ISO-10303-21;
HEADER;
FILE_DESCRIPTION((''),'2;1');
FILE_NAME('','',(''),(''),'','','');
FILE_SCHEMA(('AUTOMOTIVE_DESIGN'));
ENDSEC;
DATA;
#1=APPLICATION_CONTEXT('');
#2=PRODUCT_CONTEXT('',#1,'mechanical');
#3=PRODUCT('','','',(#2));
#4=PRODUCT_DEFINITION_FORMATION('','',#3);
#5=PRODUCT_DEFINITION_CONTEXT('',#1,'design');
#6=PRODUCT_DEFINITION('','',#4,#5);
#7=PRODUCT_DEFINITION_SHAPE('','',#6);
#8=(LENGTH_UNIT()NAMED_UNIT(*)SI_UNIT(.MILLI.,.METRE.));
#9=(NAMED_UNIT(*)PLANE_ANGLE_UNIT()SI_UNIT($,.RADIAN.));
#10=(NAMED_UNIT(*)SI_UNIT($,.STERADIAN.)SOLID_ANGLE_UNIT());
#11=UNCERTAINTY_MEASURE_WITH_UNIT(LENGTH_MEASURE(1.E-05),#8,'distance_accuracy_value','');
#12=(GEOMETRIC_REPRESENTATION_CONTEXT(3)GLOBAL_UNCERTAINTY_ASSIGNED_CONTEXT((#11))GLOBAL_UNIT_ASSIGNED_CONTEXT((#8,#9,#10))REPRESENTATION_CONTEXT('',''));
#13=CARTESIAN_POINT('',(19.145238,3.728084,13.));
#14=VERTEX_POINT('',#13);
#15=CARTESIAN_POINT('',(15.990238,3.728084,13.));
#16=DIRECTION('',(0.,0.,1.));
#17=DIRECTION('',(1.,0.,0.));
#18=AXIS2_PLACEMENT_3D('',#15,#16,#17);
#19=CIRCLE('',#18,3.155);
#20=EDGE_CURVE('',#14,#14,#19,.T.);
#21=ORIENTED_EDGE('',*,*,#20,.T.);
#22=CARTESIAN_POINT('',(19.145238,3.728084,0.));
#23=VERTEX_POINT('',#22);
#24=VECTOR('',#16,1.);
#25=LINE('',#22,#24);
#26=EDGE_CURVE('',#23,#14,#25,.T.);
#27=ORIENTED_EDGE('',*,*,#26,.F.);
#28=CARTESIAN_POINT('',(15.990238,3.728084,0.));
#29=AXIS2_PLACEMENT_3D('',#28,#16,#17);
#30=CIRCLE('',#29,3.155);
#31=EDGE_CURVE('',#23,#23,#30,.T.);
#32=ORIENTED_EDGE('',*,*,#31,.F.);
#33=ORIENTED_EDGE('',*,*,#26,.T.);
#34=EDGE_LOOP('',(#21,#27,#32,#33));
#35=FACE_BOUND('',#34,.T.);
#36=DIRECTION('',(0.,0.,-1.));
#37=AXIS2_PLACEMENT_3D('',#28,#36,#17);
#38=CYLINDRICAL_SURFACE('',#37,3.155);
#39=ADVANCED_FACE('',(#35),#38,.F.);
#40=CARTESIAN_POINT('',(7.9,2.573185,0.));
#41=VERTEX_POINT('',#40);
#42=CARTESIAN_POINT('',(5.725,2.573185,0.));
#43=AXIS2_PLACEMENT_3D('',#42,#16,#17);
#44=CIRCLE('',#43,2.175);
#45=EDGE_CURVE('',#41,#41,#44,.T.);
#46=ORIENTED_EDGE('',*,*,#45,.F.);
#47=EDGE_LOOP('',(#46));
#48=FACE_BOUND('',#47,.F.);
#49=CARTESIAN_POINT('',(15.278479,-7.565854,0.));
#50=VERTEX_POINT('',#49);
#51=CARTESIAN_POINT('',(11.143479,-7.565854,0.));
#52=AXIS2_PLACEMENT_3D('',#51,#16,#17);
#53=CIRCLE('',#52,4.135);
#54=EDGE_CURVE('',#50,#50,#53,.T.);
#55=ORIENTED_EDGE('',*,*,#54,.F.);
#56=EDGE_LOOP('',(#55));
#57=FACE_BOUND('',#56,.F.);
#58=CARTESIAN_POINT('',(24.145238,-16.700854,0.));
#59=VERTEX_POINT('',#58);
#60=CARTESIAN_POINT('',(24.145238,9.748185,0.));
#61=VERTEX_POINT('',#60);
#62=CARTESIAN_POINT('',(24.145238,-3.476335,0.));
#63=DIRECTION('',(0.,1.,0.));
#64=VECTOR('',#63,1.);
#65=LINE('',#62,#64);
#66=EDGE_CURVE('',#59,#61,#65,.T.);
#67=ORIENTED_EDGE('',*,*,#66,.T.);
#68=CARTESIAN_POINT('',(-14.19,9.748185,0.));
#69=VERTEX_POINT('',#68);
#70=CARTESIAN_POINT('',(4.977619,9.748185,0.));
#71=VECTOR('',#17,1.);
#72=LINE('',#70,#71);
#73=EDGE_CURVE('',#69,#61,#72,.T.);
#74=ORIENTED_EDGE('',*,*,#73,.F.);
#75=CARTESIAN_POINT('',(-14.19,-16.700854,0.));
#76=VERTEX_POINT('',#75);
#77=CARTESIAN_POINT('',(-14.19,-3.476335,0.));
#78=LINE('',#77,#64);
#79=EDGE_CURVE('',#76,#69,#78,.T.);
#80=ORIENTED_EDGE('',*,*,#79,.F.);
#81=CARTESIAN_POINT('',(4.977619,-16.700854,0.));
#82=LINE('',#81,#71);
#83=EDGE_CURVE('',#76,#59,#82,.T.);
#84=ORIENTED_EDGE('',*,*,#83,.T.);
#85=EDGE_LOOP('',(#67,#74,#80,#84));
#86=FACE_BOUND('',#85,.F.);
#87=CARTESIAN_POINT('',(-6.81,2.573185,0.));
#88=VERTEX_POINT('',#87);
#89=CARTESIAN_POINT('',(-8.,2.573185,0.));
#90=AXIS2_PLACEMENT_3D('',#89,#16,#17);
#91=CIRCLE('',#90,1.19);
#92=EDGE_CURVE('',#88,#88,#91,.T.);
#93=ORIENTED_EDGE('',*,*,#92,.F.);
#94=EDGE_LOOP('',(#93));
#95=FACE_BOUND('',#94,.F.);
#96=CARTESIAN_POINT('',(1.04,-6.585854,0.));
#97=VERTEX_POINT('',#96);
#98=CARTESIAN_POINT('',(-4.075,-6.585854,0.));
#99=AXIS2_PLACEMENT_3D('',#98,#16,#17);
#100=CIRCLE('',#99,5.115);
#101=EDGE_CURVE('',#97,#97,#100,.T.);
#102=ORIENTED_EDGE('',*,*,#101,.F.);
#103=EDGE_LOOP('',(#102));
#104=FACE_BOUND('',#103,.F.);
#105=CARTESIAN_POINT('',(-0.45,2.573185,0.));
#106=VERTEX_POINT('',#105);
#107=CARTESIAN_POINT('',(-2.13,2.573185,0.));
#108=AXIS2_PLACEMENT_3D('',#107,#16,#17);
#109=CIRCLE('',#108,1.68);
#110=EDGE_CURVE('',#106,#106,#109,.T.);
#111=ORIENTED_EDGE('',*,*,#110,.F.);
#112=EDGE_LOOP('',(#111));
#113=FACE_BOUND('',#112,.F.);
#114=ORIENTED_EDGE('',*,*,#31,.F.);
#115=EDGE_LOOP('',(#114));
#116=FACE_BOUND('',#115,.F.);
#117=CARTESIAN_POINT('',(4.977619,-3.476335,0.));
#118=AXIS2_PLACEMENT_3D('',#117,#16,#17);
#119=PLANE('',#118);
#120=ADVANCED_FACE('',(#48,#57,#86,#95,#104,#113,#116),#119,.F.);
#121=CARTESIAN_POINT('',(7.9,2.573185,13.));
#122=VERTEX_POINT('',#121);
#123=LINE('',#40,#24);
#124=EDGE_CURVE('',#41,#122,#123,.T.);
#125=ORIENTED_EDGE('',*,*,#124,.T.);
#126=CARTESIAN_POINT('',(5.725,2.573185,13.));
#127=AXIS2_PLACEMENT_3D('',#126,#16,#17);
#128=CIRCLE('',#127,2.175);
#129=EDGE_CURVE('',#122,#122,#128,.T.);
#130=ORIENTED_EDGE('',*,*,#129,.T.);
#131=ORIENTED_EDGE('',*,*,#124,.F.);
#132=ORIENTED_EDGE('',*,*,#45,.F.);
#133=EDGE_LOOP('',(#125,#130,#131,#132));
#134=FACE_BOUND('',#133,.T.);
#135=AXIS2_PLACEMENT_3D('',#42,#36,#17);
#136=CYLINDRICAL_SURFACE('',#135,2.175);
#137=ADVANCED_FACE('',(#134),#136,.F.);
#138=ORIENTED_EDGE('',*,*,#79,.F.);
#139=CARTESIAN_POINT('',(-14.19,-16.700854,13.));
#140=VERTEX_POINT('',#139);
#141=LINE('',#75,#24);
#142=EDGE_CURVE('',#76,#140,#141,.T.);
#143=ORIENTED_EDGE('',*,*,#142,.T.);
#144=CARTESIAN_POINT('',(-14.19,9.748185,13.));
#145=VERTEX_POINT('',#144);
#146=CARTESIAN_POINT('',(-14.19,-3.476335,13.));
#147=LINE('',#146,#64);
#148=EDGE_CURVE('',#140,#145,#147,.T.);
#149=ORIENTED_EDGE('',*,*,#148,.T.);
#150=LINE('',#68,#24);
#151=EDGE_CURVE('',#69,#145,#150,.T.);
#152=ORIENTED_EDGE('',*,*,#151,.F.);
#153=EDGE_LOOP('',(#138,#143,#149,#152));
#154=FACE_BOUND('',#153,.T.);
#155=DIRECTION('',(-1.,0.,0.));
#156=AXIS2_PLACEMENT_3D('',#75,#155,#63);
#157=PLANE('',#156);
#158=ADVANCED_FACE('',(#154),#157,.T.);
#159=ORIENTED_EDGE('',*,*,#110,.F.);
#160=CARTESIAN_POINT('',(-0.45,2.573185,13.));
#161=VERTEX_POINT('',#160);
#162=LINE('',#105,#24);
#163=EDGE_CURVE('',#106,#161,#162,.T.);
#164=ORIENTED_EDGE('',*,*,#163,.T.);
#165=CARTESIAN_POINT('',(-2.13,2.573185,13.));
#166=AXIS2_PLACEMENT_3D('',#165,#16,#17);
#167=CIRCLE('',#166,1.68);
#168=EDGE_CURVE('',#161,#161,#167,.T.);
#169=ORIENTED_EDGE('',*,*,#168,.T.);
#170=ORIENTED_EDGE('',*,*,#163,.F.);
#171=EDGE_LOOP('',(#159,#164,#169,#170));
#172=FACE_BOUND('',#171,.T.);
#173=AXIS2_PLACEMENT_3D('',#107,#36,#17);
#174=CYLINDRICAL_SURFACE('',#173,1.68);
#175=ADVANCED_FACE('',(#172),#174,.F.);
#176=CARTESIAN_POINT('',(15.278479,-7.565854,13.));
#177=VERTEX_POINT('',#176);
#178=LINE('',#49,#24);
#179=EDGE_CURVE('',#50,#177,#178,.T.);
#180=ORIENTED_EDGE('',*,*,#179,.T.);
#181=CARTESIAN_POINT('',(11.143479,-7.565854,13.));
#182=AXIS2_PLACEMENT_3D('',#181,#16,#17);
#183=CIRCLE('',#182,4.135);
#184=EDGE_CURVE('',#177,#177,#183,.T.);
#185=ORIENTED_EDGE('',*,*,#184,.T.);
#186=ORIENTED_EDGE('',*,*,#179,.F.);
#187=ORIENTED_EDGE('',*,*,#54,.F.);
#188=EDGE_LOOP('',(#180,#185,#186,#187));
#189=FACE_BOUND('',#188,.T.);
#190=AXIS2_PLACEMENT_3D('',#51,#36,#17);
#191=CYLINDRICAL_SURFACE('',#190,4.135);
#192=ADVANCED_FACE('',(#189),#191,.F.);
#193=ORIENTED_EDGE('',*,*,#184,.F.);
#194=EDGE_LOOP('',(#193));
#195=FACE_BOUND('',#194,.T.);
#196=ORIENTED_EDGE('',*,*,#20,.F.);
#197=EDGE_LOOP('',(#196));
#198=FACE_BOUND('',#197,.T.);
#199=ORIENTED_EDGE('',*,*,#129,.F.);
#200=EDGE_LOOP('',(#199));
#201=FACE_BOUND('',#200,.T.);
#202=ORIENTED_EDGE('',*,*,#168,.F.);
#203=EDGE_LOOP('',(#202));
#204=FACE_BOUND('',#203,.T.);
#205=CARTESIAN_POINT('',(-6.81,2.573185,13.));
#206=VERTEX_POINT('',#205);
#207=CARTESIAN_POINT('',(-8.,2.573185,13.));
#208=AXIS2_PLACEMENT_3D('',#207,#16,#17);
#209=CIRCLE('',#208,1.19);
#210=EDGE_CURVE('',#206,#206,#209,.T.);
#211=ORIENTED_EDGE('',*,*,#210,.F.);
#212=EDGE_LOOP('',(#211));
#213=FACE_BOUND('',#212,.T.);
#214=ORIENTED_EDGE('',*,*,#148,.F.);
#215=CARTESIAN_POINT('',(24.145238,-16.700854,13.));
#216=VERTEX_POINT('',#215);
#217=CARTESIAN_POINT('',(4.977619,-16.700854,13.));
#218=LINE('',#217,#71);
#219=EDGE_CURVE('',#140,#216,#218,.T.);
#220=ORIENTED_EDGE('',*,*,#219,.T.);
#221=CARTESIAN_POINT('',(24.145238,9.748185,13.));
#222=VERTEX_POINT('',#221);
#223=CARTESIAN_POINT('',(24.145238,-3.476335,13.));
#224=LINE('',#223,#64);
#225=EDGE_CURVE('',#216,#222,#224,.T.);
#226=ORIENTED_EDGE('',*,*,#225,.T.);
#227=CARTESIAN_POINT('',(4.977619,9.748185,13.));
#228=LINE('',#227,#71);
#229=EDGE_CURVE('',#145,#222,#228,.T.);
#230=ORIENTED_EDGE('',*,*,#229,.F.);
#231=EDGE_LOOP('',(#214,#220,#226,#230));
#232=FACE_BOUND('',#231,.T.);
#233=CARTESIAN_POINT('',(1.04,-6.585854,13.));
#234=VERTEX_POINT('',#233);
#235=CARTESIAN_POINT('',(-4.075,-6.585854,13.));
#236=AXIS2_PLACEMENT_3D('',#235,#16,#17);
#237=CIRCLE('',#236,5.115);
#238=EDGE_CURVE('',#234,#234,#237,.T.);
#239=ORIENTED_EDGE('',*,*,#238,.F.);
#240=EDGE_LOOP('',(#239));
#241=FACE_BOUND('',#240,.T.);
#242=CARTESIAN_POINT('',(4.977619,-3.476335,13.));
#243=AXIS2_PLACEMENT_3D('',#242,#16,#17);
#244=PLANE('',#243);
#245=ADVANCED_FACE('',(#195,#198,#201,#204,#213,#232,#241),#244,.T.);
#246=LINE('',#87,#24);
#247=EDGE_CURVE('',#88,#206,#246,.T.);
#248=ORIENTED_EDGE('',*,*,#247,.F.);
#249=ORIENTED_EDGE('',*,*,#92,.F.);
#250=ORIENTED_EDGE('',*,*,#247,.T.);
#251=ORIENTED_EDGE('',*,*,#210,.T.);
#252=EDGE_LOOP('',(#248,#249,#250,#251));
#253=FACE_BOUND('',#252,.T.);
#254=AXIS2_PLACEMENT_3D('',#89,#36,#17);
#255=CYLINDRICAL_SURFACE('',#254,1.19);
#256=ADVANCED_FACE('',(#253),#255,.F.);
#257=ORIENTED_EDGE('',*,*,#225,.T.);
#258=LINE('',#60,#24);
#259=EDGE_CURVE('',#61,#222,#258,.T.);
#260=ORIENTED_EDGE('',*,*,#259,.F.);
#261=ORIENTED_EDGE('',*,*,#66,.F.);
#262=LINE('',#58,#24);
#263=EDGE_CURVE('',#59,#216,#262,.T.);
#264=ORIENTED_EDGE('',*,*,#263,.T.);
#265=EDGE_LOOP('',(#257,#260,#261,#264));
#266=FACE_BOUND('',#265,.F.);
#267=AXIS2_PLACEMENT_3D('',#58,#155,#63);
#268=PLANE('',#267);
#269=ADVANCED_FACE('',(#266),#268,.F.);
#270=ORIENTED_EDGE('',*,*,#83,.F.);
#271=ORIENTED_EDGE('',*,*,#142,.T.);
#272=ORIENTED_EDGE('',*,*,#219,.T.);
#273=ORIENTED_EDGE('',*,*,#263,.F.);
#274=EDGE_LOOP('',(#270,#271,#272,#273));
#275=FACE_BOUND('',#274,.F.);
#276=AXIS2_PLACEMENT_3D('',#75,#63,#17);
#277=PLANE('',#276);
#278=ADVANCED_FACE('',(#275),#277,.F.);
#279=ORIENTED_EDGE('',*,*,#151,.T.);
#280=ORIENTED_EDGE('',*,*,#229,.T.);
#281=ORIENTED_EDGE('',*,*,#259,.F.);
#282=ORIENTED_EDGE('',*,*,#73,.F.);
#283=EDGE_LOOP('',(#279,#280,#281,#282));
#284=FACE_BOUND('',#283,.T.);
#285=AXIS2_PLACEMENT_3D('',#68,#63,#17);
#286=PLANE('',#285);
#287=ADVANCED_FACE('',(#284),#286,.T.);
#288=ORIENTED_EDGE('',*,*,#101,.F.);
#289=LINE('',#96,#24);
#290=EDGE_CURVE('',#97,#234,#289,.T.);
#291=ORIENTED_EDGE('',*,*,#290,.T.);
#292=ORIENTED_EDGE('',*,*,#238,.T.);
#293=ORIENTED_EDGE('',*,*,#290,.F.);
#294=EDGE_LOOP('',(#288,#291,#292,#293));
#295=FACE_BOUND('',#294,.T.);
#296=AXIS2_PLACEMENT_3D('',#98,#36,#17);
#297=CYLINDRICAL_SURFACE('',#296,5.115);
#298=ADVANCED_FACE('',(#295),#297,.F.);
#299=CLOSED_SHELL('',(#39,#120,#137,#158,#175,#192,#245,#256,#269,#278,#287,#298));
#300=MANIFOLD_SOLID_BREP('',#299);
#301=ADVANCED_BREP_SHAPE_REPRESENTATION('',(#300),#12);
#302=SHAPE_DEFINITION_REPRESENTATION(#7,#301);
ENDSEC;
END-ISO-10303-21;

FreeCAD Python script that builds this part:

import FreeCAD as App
import Part
import Sketcher

V = App.Vector


def add_polygon(sketch, points):
    """Adds a closed chain of lines whose ends are joined by coincident constraints."""
    first, n = sketch.GeometryCount, len(points)
    for a, b in zip(points, points[1:] + points[:1]):
        sketch.addGeometry(Part.LineSegment(App.Vector(*a, 0), App.Vector(*b, 0)), False)
    for i in range(n):
        sketch.addConstraint(Sketcher.Constraint("Coincident", first + i, 2, first + (i + 1) % n, 1))

doc = App.newDocument("Part")
body = doc.addObject("PartDesign::Body", "Body")

sketch1 = body.newObject("Sketcher::SketchObject", "Sketch")
sketch1.AttachmentSupport = (doc.getObject("XY_Plane"), [""])
sketch1.MapMode = "FlatFace"
add_polygon(sketch1, [(-14.19, 9.748185), (-14.19, -16.700854), (24.145238, -16.700854), (24.145238, 9.748185)])
sketch1.addGeometry(Part.Circle(V(-4.075, -6.585854, 0), V(0, 0, 1), 5.115), False)
sketch1.addGeometry(Part.Circle(V(11.143479, -7.565854, 0), V(0, 0, 1), 4.135), False)
sketch1.addGeometry(Part.Circle(V(-8, 2.573185, 0), V(0, 0, 1), 1.19), False)
sketch1.addGeometry(Part.Circle(V(-2.13, 2.573185, 0), V(0, 0, 1), 1.68), False)
sketch1.addGeometry(Part.Circle(V(5.725, 2.573185, 0), V(0, 0, 1), 2.175), False)
sketch1.addGeometry(Part.Circle(V(15.990238, 3.728084, 0), V(0, 0, 1), 3.155), False)
sketch1.addConstraint([
    Sketcher.Constraint("Vertical", 0),
    Sketcher.Constraint("Horizontal", 1),
    Sketcher.Constraint("Vertical", 2),
    Sketcher.Constraint("Horizontal", 3),
    Sketcher.Constraint("Horizontal", 6, 3, 7, 3),
    Sketcher.Constraint("Horizontal", 7, 3, 8, 3),
    Sketcher.Constraint("Diameter", 4, 10.23),
    Sketcher.Constraint("Diameter", 5, 8.27),
    Sketcher.Constraint("Diameter", 6, 2.38),
    Sketcher.Constraint("Diameter", 7, 3.36),
    Sketcher.Constraint("Diameter", 8, 4.35),
    Sketcher.Constraint("Diameter", 9, 6.31),
    Sketcher.Constraint("DistanceX", 6, 3, -1, 1, 8.0),
    Sketcher.Constraint("DistanceX", 4, 3, 8, 3, 9.8),
    Sketcher.Constraint("DistanceX", 7, 3, -1, 1, 2.13),
    Sketcher.Constraint("DistanceX", 0, 2, -1, 1, 14.19),
    Sketcher.Constraint("DistanceY", 5, 3, 4, 3, 0.98),
    Sketcher.Constraint("DistanceX", 4, 3, -1, 1, 4.075),
    Sketcher.Constraint("DistanceY", 0, 2, 4, 3, 10.115),
    Sketcher.Constraint("DistanceX", 9, 3, 1, 2, 8.155),
    Sketcher.Constraint("DistanceY", 8, 3, 2, 2, 7.175),
    Sketcher.Constraint("DistanceY", 0, 2, 0, 1, 26.449039),
    Sketcher.Constraint("DistanceY", 8, 3, 9, 3, 1.154899),
    Sketcher.Constraint("DistanceX", 1, 1, 1, 2, 38.335238),
    Sketcher.Constraint("DistanceX", -1, 1, 5, 3, 11.143479),
    Sketcher.Constraint("DistanceY", 4, 3, -1, 1, 6.585854),
])
pad1 = body.newObject("PartDesign::Pad", "Pad")
pad1.Profile = sketch1
pad1.Length = 13

doc.recompute()
